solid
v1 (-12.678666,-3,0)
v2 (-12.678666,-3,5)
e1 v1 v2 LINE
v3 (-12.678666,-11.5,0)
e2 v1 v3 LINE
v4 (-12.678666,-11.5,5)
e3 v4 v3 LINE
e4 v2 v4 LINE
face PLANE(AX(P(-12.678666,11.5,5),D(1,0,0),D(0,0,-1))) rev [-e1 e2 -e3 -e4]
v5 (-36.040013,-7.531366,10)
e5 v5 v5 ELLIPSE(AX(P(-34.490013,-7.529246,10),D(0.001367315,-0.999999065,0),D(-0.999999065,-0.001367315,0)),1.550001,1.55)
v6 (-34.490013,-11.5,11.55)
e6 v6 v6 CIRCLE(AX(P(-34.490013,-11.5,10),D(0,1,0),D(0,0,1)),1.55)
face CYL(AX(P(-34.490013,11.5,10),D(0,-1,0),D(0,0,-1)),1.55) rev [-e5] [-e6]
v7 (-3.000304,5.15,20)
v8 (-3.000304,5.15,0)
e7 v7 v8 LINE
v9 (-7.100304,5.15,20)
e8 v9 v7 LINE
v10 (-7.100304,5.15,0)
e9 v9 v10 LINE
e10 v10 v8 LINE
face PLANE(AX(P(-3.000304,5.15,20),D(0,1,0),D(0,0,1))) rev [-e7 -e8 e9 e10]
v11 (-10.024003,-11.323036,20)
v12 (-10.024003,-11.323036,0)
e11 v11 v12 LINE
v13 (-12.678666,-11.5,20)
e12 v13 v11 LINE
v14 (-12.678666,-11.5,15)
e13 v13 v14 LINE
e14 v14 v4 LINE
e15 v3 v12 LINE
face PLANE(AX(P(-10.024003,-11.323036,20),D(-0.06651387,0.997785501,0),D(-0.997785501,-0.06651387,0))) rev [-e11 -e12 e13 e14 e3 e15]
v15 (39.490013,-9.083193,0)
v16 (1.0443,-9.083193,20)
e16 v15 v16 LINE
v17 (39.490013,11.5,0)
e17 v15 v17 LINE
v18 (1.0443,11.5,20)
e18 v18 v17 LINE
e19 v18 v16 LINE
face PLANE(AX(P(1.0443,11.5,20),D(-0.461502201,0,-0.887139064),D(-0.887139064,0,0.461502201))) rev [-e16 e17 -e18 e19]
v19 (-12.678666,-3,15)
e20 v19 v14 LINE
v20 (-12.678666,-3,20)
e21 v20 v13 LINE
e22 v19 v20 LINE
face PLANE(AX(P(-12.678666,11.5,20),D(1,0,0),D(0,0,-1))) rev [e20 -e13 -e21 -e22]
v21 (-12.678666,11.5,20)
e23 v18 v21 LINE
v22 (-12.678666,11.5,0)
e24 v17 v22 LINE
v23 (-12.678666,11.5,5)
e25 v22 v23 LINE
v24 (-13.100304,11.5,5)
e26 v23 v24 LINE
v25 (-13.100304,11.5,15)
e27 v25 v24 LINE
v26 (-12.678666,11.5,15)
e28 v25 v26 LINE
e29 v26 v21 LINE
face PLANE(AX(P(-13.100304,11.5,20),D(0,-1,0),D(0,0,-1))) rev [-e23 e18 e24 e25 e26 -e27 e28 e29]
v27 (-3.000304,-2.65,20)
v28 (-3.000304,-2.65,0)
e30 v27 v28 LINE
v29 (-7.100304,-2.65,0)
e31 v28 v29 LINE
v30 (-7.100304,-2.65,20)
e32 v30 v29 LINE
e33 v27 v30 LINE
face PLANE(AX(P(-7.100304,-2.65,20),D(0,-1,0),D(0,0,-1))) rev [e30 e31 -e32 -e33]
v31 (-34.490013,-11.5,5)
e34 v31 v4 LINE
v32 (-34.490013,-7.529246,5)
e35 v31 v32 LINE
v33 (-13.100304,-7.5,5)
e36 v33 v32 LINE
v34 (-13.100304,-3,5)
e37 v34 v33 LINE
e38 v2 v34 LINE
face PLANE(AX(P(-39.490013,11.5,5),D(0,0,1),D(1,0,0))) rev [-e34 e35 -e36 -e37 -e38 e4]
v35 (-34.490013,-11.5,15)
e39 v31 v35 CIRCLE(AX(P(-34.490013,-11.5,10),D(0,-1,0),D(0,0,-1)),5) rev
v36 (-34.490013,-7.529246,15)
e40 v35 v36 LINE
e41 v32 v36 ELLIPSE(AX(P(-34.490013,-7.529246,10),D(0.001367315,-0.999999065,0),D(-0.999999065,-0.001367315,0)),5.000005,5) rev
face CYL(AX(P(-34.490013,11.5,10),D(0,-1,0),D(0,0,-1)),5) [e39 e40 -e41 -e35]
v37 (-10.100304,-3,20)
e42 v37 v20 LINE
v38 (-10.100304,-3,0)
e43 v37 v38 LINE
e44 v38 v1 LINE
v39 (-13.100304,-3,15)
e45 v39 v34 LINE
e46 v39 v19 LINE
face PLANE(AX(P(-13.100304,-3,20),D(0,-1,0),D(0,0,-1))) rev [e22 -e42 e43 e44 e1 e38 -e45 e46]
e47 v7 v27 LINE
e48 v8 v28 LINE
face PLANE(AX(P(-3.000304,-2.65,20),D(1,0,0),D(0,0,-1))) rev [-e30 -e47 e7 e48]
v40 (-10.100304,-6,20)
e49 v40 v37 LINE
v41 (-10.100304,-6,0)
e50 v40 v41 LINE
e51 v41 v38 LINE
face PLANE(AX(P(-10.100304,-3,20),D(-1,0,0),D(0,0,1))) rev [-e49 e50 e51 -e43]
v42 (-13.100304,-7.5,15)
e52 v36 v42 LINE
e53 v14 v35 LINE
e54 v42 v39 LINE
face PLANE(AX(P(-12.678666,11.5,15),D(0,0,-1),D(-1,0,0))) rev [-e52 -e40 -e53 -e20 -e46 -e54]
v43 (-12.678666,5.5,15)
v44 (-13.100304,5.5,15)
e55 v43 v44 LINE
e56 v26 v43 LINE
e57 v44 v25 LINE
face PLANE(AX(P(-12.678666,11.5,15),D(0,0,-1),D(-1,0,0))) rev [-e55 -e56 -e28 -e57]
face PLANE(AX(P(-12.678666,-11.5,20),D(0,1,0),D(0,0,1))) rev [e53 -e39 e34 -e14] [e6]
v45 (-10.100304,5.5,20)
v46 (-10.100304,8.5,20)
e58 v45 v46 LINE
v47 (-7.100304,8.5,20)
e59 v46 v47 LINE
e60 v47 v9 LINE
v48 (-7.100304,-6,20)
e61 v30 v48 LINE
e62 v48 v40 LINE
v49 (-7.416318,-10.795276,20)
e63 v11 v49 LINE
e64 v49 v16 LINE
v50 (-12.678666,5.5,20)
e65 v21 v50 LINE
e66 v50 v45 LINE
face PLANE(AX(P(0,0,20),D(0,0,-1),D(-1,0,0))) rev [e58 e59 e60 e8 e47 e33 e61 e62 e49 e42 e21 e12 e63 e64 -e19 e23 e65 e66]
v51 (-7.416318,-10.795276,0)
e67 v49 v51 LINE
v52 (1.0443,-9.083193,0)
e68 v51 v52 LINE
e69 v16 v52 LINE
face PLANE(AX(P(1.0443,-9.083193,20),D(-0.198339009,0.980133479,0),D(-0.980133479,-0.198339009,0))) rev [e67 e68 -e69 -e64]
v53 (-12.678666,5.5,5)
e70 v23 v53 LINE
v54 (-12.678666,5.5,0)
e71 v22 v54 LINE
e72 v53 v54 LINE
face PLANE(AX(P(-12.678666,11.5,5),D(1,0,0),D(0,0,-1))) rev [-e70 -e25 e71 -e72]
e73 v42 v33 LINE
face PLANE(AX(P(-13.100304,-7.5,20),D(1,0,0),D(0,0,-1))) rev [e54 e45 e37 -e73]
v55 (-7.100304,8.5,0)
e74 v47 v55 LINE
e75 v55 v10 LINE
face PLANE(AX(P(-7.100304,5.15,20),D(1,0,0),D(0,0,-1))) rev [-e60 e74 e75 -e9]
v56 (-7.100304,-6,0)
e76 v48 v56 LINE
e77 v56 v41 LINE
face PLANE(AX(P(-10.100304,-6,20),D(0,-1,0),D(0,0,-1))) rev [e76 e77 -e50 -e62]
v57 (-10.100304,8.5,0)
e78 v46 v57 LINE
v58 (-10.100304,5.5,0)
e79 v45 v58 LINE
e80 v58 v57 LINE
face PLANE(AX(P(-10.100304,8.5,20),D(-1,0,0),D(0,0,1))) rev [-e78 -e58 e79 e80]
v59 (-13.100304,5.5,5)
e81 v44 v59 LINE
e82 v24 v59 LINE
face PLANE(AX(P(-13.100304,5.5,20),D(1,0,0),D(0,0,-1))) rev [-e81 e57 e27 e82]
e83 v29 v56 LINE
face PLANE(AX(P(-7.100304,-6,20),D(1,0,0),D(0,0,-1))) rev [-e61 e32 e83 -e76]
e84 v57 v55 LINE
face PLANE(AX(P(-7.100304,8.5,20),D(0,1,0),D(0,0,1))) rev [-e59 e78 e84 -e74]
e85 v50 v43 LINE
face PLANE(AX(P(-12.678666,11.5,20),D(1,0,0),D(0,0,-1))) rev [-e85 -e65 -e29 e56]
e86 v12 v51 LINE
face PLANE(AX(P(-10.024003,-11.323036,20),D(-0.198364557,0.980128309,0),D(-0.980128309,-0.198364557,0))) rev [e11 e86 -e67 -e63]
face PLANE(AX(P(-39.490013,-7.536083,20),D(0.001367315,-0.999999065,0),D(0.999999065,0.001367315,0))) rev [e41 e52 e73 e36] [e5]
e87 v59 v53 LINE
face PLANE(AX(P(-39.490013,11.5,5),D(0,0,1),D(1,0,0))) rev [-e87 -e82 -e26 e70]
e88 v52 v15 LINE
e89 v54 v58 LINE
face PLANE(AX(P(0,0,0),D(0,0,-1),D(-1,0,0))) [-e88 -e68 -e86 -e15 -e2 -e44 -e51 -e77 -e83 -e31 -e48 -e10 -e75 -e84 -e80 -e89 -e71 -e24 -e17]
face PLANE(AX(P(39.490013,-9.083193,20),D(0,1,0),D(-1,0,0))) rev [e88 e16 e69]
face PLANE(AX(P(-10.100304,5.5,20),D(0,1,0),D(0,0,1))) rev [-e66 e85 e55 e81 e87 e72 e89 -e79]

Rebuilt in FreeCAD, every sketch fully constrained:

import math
import FreeCAD as App
import Part
import Sketcher

V = App.Vector
Q = App.Units.Quantity

doc = App.newDocument("Part")
params = doc.addObject("Spreadsheet::Sheet", "Params")
for row, (alias, value) in enumerate([
    ("sketch1_width", "3 mm"),
    ("sketch1_width2", "3 mm"),
    ("sketch1_width3", "3 mm"),
    ("sketch1_width4", "3 mm"),
    ("sketch1_height", "6 mm"),
    ("pad1_length", "20 mm"),
    ("sketch2_height", "20 mm"),
    ("sketch3_height", "5 mm"),
    ("sketch4_radius", "5 mm"),
    ("sketch5_diameter", "3.1 mm"),
], start=1):
    params.set(f"A{row}", alias)
    params.set(f"B{row}", "=" + value)
    params.setAlias(f"B{row}", alias)

body = doc.addObject("PartDesign::Body", "Body")

sketch1 = body.newObject("Sketcher::SketchObject", "Sketch")
sketch1.AttachmentSupport = (doc.getObject("XY_Plane"), [""])
sketch1.MapMode = "FlatFace"
sketch1.addGeometry(Part.LineSegment(V(39.490013, 11.5, 0), V(-13.100304, 11.5, 0)), False)
sketch1.addGeometry(Part.LineSegment(V(-13.100304, 11.5, 0), V(-13.100304, 5.5, 0)), False)
sketch1.addGeometry(Part.LineSegment(V(-13.100304, 5.5, 0), V(-10.100304, 5.5, 0)), False)
sketch1.addGeometry(Part.LineSegment(V(-10.100304, 5.5, 0), V(-10.100304, 8.5, 0)), False)
sketch1.addGeometry(Part.LineSegment(V(-10.100304, 8.5, 0), V(-7.100304, 8.5, 0)), False)
sketch1.addGeometry(Part.LineSegment(V(-7.100304, 8.5, 0), V(-7.100304, 5.15, 0)), False)
sketch1.addGeometry(Part.LineSegment(V(-7.100304, 5.15, 0), V(-3.000304, 5.15, 0)), False)
sketch1.addGeometry(Part.LineSegment(V(-3.000304, 5.15, 0), V(-3.000304, -2.65, 0)), False)
sketch1.addGeometry(Part.LineSegment(V(-3.000304, -2.65, 0), V(-7.100304, -2.65, 0)), False)
sketch1.addGeometry(Part.LineSegment(V(-7.100304, -2.65, 0), V(-7.100304, -6, 0)), False)
sketch1.addGeometry(Part.LineSegment(V(-7.100304, -6, 0), V(-10.100304, -6, 0)), False)
sketch1.addGeometry(Part.LineSegment(V(-10.100304, -6, 0), V(-10.100304, -3, 0)), False)
sketch1.addGeometry(Part.LineSegment(V(-10.100304, -3, 0), V(-13.100304, -3, 0)), False)
sketch1.addGeometry(Part.LineSegment(V(-13.100304, -3, 0), V(-13.100304, -7.5, 0)), False)
sketch1.addGeometry(Part.LineSegment(V(-13.100304, -7.5, 0), V(-39.490013, -7.536083, 0)), False)
sketch1.addGeometry(Part.LineSegment(V(-39.490013, -7.536083, 0), V(-39.490013, -11.5, 0)), False)
sketch1.addGeometry(Part.LineSegment(V(-39.490013, -11.5, 0), V(-12.678666, -11.5, 0)), False)
sketch1.addGeometry(Part.LineSegment(V(-12.678666, -11.5, 0), V(-10.024003, -11.323036, 0)), False)
sketch1.addGeometry(Part.LineSegment(V(-10.024003, -11.323036, 0), V(-7.416318, -10.795276, 0)), False)
sketch1.addGeometry(Part.LineSegment(V(-7.416318, -10.795276, 0), V(1.0443, -9.083193, 0)), False)
sketch1.addGeometry(Part.LineSegment(V(1.0443, -9.083193, 0), V(39.490013, -9.083193, 0)), False)
sketch1.addGeometry(Part.LineSegment(V(39.490013, -9.083193, 0), V(39.490013, 11.5, 0)), False)
sketch1.addConstraint(Sketcher.Constraint("Coincident", 0, 2, 1, 1))
sketch1.addConstraint(Sketcher.Constraint("Coincident", 1, 2, 2, 1))
sketch1.addConstraint(Sketcher.Constraint("Coincident", 2, 2, 3, 1))
sketch1.addConstraint(Sketcher.Constraint("Coincident", 3, 2, 4, 1))
sketch1.addConstraint(Sketcher.Constraint("Coincident", 4, 2, 5, 1))
sketch1.addConstraint(Sketcher.Constraint("Coincident", 5, 2, 6, 1))
sketch1.addConstraint(Sketcher.Constraint("Coincident", 6, 2, 7, 1))
sketch1.addConstraint(Sketcher.Constraint("Coincident", 7, 2, 8, 1))
sketch1.addConstraint(Sketcher.Constraint("Coincident", 8, 2, 9, 1))
sketch1.addConstraint(Sketcher.Constraint("Coincident", 9, 2, 10, 1))
sketch1.addConstraint(Sketcher.Constraint("Coincident", 10, 2, 11, 1))
sketch1.addConstraint(Sketcher.Constraint("Coincident", 11, 2, 12, 1))
sketch1.addConstraint(Sketcher.Constraint("Coincident", 12, 2, 13, 1))
sketch1.addConstraint(Sketcher.Constraint("Coincident", 13, 2, 14, 1))
sketch1.addConstraint(Sketcher.Constraint("Coincident", 14, 2, 15, 1))
sketch1.addConstraint(Sketcher.Constraint("Coincident", 15, 2, 16, 1))
sketch1.addConstraint(Sketcher.Constraint("Coincident", 16, 2, 17, 1))
sketch1.addConstraint(Sketcher.Constraint("Coincident", 17, 2, 18, 1))
sketch1.addConstraint(Sketcher.Constraint("Coincident", 18, 2, 19, 1))
sketch1.addConstraint(Sketcher.Constraint("Coincident", 19, 2, 20, 1))
sketch1.addConstraint(Sketcher.Constraint("Coincident", 20, 2, 21, 1))
sketch1.addConstraint(Sketcher.Constraint("Coincident", 21, 2, 0, 1))
sketch1.addConstraint(Sketcher.Constraint("Horizontal", 0))
sketch1.addConstraint(Sketcher.Constraint("Vertical", 1))
sketch1.addConstraint(Sketcher.Constraint("Horizontal", 2))
sketch1.addConstraint(Sketcher.Constraint("Vertical", 3))
sketch1.addConstraint(Sketcher.Constraint("Horizontal", 4))
sketch1.addConstraint(Sketcher.Constraint("Vertical", 5))
sketch1.addConstraint(Sketcher.Constraint("Horizontal", 6))
sketch1.addConstraint(Sketcher.Constraint("Vertical", 7))
sketch1.addConstraint(Sketcher.Constraint("Horizontal", 8))
sketch1.addConstraint(Sketcher.Constraint("Vertical", 9))
sketch1.addConstraint(Sketcher.Constraint("Horizontal", 10))
sketch1.addConstraint(Sketcher.Constraint("Vertical", 11))
sketch1.addConstraint(Sketcher.Constraint("Horizontal", 12))
sketch1.addConstraint(Sketcher.Constraint("Vertical", 13))
sketch1.addConstraint(Sketcher.Constraint("Vertical", 15))
sketch1.addConstraint(Sketcher.Constraint("Horizontal", 16))
sketch1.addConstraint(Sketcher.Constraint("Horizontal", 20))
sketch1.addConstraint(Sketcher.Constraint("Vertical", 21))
sketch1.addConstraint(Sketcher.Constraint("DistanceX", 2, 1, 2, 2, Q("3 mm")))
sketch1.addConstraint(Sketcher.Constraint("DistanceX", 4, 1, 4, 2, Q("3 mm")))
sketch1.addConstraint(Sketcher.Constraint("DistanceX", 10, 2, 10, 1, Q("3 mm")))
sketch1.addConstraint(Sketcher.Constraint("DistanceX", 12, 2, 12, 1, Q("3 mm")))
sketch1.addConstraint(Sketcher.Constraint("DistanceY", 1, 2, 1, 1, Q("6 mm")))
sketch1.addConstraint(Sketcher.Constraint("DistanceY", 3, 1, 3, 2, Q("3 mm")))
sketch1.addConstraint(Sketcher.Constraint("DistanceY", 11, 1, 11, 2, Q("3 mm")))
sketch1.addConstraint(Sketcher.Constraint("DistanceX", 6, 1, 6, 2, Q("4.1 mm")))
sketch1.addConstraint(Sketcher.Constraint("DistanceX", 8, 2, 8, 1, Q("4.1 mm")))
sketch1.addConstraint(Sketcher.Constraint("DistanceY", 7, 2, 7, 1, Q("7.8 mm")))
sketch1.addConstraint(Sketcher.Constraint("DistanceY", 13, 2, 13, 1, Q("4.5 mm")))
sketch1.addConstraint(Sketcher.Constraint("DistanceY", 9, 2, -1, 1, Q("6 mm")))
sketch1.addConstraint(Sketcher.Constraint("DistanceY", 15, 2, 13, 2, Q("4 mm")))
sketch1.addConstraint(Sketcher.Constraint("DistanceY", 5, 2, 5, 1, Q("3.35 mm")))
sketch1.addConstraint(Sketcher.Constraint("DistanceY", 9, 2, 9, 1, Q("3.35 mm")))
sketch1.addConstraint(Sketcher.Constraint("DistanceX", -1, 1, 19, 2, Q("1.0443 mm")))
sketch1.addConstraint(Sketcher.Constraint("DistanceX", 13, 2, 17, 2, Q("3.076301 mm")))
sketch1.addConstraint(Sketcher.Constraint("DistanceX", 0, 2, 0, 1, Q("52.590318 mm")))
sketch1.addConstraint(Sketcher.Constraint("DistanceX", 16, 1, 16, 2, Q("26.811347 mm")))
sketch1.addConstraint(Sketcher.Constraint("DistanceX", 20, 1, 20, 2, Q("38.445713 mm")))
sketch1.addConstraint(Sketcher.Constraint("DistanceY", 15, 2, 15, 1, Q("3.963917 mm")))
sketch1.addConstraint(Sketcher.Constraint("DistanceY", 21, 1, 21, 2, Q("20.583193 mm")))
sketch1.addConstraint(Sketcher.Constraint("DistanceX", 14, 2, 13, 2, Q("26.389709 mm")))
sketch1.addConstraint(Sketcher.Constraint("DistanceY", 17, 2, 18, 2, Q("0.52776 mm")))
sketch1.addConstraint(Sketcher.Constraint("DistanceX", 16, 2, 18, 2, Q("5.262348 mm")))
sketch1.addConstraint(Sketcher.Constraint("Distance", 17, Q("2.660555 mm")))
sketch1.setExpression("Constraints[40]", "Params.sketch1_width")
sketch1.setExpression("Constraints[41]", "Params.sketch1_width2")
sketch1.setExpression("Constraints[42]", "Params.sketch1_width3")
sketch1.setExpression("Constraints[43]", "Params.sketch1_width4")
sketch1.setExpression("Constraints[44]", "Params.sketch1_height")
pad1 = body.newObject("PartDesign::Pad", "Pad")
pad1.Profile = sketch1
pad1.setExpression("Length", "Params.pad1_length")

sketch2 = body.newObject("Sketcher::SketchObject", "Sketch001")
sketch2.AttachmentSupport = (doc.getObject("XZ_Plane"), [""])
sketch2.MapMode = "FlatFace"
sketch2.AttachmentOffset = App.Placement(V(0, 0, 9.083193), App.Rotation())
sketch2.addGeometry(Part.LineSegment(V(1, 20, 0), V(39, 0, 0)), False)
sketch2.addGeometry(Part.LineSegment(V(39, 0, 0), V(39, 20, 0)), False)
sketch2.addGeometry(Part.LineSegment(V(39, 20, 0), V(1, 20, 0)), False)
sketch2.addConstraint(Sketcher.Constraint("Coincident", 0, 2, 1, 1))
sketch2.addConstraint(Sketcher.Constraint("Coincident", 1, 2, 2, 1))
sketch2.addConstraint(Sketcher.Constraint("Coincident", 2, 2, 0, 1))
sketch2.addConstraint(Sketcher.Constraint("Vertical", 1))
sketch2.addConstraint(Sketcher.Constraint("Horizontal", 2))
sketch2.addConstraint(Sketcher.Constraint("PointOnObject", 0, 2, -1))
sketch2.addConstraint(Sketcher.Constraint("DistanceY", 1, 1, 1, 2, Q("20 mm")))
sketch2.addConstraint(Sketcher.Constraint("DistanceX", -1, 1, 2, 2, Q("1.0443 mm")))
sketch2.addConstraint(Sketcher.Constraint("Distance", 0, Q("43.336738 mm")))
sketch2.setExpression("Constraints[6]", "Params.sketch2_height")
pocket1 = body.newObject("PartDesign::Pocket", "Pocket")
pocket1.Profile = sketch2
pocket1.Type = "ThroughAll"
pocket1.Midplane = True

sketch3 = body.newObject("Sketcher::SketchObject", "Sketch002")
sketch3.AttachmentSupport = (doc.getObject("XZ_Plane"), [""])
sketch3.MapMode = "FlatFace"
sketch3.AttachmentOffset = App.Placement(V(0, 0, 11.5), App.Rotation())
sketch3.addGeometry(Part.LineSegment(V(-39, 20, 0), V(-39, 15, 0)), False)
sketch3.addGeometry(Part.LineSegment(V(-39, 15, 0), V(-13, 15, 0)), False)
sketch3.addGeometry(Part.LineSegment(V(-13, 15, 0), V(-13, 20, 0)), False)
sketch3.addGeometry(Part.LineSegment(V(-13, 20, 0), V(-39, 20, 0)), False)
sketch3.addGeometry(Part.LineSegment(V(-39, 5, 0), V(-39, 0, 0)), False)
sketch3.addGeometry(Part.LineSegment(V(-39, 0, 0), V(-13, 0, 0)), False)
sketch3.addGeometry(Part.LineSegment(V(-13, 0, 0), V(-13, 5, 0)), False)
sketch3.addGeometry(Part.LineSegment(V(-13, 5, 0), V(-39, 5, 0)), False)
sketch3.addConstraint(Sketcher.Constraint("Coincident", 0, 2, 1, 1))
sketch3.addConstraint(Sketcher.Constraint("Coincident", 1, 2, 2, 1))
sketch3.addConstraint(Sketcher.Constraint("Coincident", 2, 2, 3, 1))
sketch3.addConstraint(Sketcher.Constraint("Coincident", 3, 2, 0, 1))
sketch3.addConstraint(Sketcher.Constraint("Coincident", 4, 2, 5, 1))
sketch3.addConstraint(Sketcher.Constraint("Coincident", 5, 2, 6, 1))
sketch3.addConstraint(Sketcher.Constraint("Coincident", 6, 2, 7, 1))
sketch3.addConstraint(Sketcher.Constraint("Coincident", 7, 2, 4, 1))
sketch3.addConstraint(Sketcher.Constraint("Vertical", 0))
sketch3.addConstraint(Sketcher.Constraint("Horizontal", 1))
sketch3.addConstraint(Sketcher.Constraint("Vertical", 2))
sketch3.addConstraint(Sketcher.Constraint("Horizontal", 3))
sketch3.addConstraint(Sketcher.Constraint("Vertical", 4))
sketch3.addConstraint(Sketcher.Constraint("Horizontal", 5))
sketch3.addConstraint(Sketcher.Constraint("Vertical", 6))
sketch3.addConstraint(Sketcher.Constraint("Horizontal", 7))
sketch3.addConstraint(Sketcher.Constraint("PointOnObject", 4, 2, -1))
sketch3.addConstraint(Sketcher.Constraint("Vertical", 3, 2, 4, 2))
sketch3.addConstraint(Sketcher.Constraint("Vertical", 2, 2, 5, 2))
sketch3.addConstraint(Sketcher.Constraint("Equal", 2, 4))
sketch3.addConstraint(Sketcher.Constraint("DistanceY", 0, 2, 0, 1, Q("5 mm")))
sketch3.addConstraint(Sketcher.Constraint("DistanceY", -1, 1, 0, 2, Q("15 mm")))
sketch3.addConstraint(Sketcher.Constraint("DistanceX", 1, 1, 1, 2, Q("26.811347 mm")))
sketch3.addConstraint(Sketcher.Constraint("DistanceX", 0, 2, -1, 1, Q("39.490013 mm")))
sketch3.setExpression("Constraints[20]", "Params.sketch3_height")
pocket2 = body.newObject("PartDesign::Pocket", "Pocket001")
pocket2.Profile = sketch3
pocket2.Type = "ThroughAll"
pocket2.Midplane = True

sketch4 = body.newObject("Sketcher::SketchObject", "Sketch003")
sketch4.AttachmentSupport = (doc.getObject("XZ_Plane"), [""])
sketch4.MapMode = "FlatFace"
sketch4.AttachmentOffset = App.Placement(V(0, 0, 11.5), App.Rotation())
sketch4.addGeometry(Part.ArcOfCircle(Part.Circle(V(-34, 10, 0), V(0, 0, 1), 5), math.radians(90), math.radians(180)), False)
sketch4.addGeometry(Part.LineSegment(V(-34, 15, 0), V(-39, 15, 0)), False)
sketch4.addGeometry(Part.LineSegment(V(-39, 15, 0), V(-39, 10, 0)), False)
sketch4.addGeometry(Part.ArcOfCircle(Part.Circle(V(-34, 10, 0), V(0, 0, 1), 5), math.radians(180), math.radians(270)), False)
sketch4.addGeometry(Part.LineSegment(V(-39, 10, 0), V(-39, 5, 0)), False)
sketch4.addGeometry(Part.LineSegment(V(-39, 5, 0), V(-34, 5, 0)), False)
sketch4.addConstraint(Sketcher.Constraint("Tangent", 0, 1, 1, 1))
sketch4.addConstraint(Sketcher.Constraint("Coincident", 1, 2, 2, 1))
sketch4.addConstraint(Sketcher.Constraint("Tangent", 2, 2, 0, 2))
sketch4.addConstraint(Sketcher.Constraint("Tangent", 3, 1, 4, 1))
sketch4.addConstraint(Sketcher.Constraint("Coincident", 4, 2, 5, 1))
sketch4.addConstraint(Sketcher.Constraint("Tangent", 5, 2, 3, 2))
sketch4.addConstraint(Sketcher.Constraint("Horizontal", 1))
sketch4.addConstraint(Sketcher.Constraint("Vertical", 2))
sketch4.addConstraint(Sketcher.Constraint("Vertical", 4))
sketch4.addConstraint(Sketcher.Constraint("Horizontal", 5))
sketch4.addConstraint(Sketcher.Constraint("Coincident", 3, 3, 0, 3))
sketch4.addConstraint(Sketcher.Constraint("Equal", 0, 3))
sketch4.addConstraint(Sketcher.Constraint("Radius", 0, Q("5 mm")))
sketch4.addConstraint(Sketcher.Constraint("DistanceY", -1, 1, 0, 3, Q("10 mm")))
sketch4.addConstraint(Sketcher.Constraint("DistanceX", 0, 3, -1, 1, Q("34.490013 mm")))
sketch4.setExpression("Constraints[12]", "Params.sketch4_radius")
pocket3 = body.newObject("PartDesign::Pocket", "Pocket002")
pocket3.Profile = sketch4
pocket3.Type = "ThroughAll"
pocket3.Midplane = True

sketch5 = body.newObject("Sketcher::SketchObject", "Sketch004")
sketch5.AttachmentSupport = (doc.getObject("XZ_Plane"), [""])
sketch5.MapMode = "FlatFace"
sketch5.AttachmentOffset = App.Placement(V(0, 0, 11.5), App.Rotation())
sketch5.addGeometry(Part.Circle(V(-34.5, 10, 0), V(0, 0, 1), 1.6), False)
sketch5.addConstraint(Sketcher.Constraint("Diameter", 0, Q("3.1 mm")))
sketch5.addConstraint(Sketcher.Constraint("DistanceY", -1, 1, 0, 3, Q("10 mm")))
sketch5.addConstraint(Sketcher.Constraint("DistanceX", 0, 3, -1, 1, Q("34.490013 mm")))
sketch5.setExpression("Constraints[0]", "Params.sketch5_diameter")
pocket4 = body.newObject("PartDesign::Pocket", "Pocket003")
pocket4.Profile = sketch5
pocket4.Type = "ThroughAll"
pocket4.Midplane = True

doc.recompute()
